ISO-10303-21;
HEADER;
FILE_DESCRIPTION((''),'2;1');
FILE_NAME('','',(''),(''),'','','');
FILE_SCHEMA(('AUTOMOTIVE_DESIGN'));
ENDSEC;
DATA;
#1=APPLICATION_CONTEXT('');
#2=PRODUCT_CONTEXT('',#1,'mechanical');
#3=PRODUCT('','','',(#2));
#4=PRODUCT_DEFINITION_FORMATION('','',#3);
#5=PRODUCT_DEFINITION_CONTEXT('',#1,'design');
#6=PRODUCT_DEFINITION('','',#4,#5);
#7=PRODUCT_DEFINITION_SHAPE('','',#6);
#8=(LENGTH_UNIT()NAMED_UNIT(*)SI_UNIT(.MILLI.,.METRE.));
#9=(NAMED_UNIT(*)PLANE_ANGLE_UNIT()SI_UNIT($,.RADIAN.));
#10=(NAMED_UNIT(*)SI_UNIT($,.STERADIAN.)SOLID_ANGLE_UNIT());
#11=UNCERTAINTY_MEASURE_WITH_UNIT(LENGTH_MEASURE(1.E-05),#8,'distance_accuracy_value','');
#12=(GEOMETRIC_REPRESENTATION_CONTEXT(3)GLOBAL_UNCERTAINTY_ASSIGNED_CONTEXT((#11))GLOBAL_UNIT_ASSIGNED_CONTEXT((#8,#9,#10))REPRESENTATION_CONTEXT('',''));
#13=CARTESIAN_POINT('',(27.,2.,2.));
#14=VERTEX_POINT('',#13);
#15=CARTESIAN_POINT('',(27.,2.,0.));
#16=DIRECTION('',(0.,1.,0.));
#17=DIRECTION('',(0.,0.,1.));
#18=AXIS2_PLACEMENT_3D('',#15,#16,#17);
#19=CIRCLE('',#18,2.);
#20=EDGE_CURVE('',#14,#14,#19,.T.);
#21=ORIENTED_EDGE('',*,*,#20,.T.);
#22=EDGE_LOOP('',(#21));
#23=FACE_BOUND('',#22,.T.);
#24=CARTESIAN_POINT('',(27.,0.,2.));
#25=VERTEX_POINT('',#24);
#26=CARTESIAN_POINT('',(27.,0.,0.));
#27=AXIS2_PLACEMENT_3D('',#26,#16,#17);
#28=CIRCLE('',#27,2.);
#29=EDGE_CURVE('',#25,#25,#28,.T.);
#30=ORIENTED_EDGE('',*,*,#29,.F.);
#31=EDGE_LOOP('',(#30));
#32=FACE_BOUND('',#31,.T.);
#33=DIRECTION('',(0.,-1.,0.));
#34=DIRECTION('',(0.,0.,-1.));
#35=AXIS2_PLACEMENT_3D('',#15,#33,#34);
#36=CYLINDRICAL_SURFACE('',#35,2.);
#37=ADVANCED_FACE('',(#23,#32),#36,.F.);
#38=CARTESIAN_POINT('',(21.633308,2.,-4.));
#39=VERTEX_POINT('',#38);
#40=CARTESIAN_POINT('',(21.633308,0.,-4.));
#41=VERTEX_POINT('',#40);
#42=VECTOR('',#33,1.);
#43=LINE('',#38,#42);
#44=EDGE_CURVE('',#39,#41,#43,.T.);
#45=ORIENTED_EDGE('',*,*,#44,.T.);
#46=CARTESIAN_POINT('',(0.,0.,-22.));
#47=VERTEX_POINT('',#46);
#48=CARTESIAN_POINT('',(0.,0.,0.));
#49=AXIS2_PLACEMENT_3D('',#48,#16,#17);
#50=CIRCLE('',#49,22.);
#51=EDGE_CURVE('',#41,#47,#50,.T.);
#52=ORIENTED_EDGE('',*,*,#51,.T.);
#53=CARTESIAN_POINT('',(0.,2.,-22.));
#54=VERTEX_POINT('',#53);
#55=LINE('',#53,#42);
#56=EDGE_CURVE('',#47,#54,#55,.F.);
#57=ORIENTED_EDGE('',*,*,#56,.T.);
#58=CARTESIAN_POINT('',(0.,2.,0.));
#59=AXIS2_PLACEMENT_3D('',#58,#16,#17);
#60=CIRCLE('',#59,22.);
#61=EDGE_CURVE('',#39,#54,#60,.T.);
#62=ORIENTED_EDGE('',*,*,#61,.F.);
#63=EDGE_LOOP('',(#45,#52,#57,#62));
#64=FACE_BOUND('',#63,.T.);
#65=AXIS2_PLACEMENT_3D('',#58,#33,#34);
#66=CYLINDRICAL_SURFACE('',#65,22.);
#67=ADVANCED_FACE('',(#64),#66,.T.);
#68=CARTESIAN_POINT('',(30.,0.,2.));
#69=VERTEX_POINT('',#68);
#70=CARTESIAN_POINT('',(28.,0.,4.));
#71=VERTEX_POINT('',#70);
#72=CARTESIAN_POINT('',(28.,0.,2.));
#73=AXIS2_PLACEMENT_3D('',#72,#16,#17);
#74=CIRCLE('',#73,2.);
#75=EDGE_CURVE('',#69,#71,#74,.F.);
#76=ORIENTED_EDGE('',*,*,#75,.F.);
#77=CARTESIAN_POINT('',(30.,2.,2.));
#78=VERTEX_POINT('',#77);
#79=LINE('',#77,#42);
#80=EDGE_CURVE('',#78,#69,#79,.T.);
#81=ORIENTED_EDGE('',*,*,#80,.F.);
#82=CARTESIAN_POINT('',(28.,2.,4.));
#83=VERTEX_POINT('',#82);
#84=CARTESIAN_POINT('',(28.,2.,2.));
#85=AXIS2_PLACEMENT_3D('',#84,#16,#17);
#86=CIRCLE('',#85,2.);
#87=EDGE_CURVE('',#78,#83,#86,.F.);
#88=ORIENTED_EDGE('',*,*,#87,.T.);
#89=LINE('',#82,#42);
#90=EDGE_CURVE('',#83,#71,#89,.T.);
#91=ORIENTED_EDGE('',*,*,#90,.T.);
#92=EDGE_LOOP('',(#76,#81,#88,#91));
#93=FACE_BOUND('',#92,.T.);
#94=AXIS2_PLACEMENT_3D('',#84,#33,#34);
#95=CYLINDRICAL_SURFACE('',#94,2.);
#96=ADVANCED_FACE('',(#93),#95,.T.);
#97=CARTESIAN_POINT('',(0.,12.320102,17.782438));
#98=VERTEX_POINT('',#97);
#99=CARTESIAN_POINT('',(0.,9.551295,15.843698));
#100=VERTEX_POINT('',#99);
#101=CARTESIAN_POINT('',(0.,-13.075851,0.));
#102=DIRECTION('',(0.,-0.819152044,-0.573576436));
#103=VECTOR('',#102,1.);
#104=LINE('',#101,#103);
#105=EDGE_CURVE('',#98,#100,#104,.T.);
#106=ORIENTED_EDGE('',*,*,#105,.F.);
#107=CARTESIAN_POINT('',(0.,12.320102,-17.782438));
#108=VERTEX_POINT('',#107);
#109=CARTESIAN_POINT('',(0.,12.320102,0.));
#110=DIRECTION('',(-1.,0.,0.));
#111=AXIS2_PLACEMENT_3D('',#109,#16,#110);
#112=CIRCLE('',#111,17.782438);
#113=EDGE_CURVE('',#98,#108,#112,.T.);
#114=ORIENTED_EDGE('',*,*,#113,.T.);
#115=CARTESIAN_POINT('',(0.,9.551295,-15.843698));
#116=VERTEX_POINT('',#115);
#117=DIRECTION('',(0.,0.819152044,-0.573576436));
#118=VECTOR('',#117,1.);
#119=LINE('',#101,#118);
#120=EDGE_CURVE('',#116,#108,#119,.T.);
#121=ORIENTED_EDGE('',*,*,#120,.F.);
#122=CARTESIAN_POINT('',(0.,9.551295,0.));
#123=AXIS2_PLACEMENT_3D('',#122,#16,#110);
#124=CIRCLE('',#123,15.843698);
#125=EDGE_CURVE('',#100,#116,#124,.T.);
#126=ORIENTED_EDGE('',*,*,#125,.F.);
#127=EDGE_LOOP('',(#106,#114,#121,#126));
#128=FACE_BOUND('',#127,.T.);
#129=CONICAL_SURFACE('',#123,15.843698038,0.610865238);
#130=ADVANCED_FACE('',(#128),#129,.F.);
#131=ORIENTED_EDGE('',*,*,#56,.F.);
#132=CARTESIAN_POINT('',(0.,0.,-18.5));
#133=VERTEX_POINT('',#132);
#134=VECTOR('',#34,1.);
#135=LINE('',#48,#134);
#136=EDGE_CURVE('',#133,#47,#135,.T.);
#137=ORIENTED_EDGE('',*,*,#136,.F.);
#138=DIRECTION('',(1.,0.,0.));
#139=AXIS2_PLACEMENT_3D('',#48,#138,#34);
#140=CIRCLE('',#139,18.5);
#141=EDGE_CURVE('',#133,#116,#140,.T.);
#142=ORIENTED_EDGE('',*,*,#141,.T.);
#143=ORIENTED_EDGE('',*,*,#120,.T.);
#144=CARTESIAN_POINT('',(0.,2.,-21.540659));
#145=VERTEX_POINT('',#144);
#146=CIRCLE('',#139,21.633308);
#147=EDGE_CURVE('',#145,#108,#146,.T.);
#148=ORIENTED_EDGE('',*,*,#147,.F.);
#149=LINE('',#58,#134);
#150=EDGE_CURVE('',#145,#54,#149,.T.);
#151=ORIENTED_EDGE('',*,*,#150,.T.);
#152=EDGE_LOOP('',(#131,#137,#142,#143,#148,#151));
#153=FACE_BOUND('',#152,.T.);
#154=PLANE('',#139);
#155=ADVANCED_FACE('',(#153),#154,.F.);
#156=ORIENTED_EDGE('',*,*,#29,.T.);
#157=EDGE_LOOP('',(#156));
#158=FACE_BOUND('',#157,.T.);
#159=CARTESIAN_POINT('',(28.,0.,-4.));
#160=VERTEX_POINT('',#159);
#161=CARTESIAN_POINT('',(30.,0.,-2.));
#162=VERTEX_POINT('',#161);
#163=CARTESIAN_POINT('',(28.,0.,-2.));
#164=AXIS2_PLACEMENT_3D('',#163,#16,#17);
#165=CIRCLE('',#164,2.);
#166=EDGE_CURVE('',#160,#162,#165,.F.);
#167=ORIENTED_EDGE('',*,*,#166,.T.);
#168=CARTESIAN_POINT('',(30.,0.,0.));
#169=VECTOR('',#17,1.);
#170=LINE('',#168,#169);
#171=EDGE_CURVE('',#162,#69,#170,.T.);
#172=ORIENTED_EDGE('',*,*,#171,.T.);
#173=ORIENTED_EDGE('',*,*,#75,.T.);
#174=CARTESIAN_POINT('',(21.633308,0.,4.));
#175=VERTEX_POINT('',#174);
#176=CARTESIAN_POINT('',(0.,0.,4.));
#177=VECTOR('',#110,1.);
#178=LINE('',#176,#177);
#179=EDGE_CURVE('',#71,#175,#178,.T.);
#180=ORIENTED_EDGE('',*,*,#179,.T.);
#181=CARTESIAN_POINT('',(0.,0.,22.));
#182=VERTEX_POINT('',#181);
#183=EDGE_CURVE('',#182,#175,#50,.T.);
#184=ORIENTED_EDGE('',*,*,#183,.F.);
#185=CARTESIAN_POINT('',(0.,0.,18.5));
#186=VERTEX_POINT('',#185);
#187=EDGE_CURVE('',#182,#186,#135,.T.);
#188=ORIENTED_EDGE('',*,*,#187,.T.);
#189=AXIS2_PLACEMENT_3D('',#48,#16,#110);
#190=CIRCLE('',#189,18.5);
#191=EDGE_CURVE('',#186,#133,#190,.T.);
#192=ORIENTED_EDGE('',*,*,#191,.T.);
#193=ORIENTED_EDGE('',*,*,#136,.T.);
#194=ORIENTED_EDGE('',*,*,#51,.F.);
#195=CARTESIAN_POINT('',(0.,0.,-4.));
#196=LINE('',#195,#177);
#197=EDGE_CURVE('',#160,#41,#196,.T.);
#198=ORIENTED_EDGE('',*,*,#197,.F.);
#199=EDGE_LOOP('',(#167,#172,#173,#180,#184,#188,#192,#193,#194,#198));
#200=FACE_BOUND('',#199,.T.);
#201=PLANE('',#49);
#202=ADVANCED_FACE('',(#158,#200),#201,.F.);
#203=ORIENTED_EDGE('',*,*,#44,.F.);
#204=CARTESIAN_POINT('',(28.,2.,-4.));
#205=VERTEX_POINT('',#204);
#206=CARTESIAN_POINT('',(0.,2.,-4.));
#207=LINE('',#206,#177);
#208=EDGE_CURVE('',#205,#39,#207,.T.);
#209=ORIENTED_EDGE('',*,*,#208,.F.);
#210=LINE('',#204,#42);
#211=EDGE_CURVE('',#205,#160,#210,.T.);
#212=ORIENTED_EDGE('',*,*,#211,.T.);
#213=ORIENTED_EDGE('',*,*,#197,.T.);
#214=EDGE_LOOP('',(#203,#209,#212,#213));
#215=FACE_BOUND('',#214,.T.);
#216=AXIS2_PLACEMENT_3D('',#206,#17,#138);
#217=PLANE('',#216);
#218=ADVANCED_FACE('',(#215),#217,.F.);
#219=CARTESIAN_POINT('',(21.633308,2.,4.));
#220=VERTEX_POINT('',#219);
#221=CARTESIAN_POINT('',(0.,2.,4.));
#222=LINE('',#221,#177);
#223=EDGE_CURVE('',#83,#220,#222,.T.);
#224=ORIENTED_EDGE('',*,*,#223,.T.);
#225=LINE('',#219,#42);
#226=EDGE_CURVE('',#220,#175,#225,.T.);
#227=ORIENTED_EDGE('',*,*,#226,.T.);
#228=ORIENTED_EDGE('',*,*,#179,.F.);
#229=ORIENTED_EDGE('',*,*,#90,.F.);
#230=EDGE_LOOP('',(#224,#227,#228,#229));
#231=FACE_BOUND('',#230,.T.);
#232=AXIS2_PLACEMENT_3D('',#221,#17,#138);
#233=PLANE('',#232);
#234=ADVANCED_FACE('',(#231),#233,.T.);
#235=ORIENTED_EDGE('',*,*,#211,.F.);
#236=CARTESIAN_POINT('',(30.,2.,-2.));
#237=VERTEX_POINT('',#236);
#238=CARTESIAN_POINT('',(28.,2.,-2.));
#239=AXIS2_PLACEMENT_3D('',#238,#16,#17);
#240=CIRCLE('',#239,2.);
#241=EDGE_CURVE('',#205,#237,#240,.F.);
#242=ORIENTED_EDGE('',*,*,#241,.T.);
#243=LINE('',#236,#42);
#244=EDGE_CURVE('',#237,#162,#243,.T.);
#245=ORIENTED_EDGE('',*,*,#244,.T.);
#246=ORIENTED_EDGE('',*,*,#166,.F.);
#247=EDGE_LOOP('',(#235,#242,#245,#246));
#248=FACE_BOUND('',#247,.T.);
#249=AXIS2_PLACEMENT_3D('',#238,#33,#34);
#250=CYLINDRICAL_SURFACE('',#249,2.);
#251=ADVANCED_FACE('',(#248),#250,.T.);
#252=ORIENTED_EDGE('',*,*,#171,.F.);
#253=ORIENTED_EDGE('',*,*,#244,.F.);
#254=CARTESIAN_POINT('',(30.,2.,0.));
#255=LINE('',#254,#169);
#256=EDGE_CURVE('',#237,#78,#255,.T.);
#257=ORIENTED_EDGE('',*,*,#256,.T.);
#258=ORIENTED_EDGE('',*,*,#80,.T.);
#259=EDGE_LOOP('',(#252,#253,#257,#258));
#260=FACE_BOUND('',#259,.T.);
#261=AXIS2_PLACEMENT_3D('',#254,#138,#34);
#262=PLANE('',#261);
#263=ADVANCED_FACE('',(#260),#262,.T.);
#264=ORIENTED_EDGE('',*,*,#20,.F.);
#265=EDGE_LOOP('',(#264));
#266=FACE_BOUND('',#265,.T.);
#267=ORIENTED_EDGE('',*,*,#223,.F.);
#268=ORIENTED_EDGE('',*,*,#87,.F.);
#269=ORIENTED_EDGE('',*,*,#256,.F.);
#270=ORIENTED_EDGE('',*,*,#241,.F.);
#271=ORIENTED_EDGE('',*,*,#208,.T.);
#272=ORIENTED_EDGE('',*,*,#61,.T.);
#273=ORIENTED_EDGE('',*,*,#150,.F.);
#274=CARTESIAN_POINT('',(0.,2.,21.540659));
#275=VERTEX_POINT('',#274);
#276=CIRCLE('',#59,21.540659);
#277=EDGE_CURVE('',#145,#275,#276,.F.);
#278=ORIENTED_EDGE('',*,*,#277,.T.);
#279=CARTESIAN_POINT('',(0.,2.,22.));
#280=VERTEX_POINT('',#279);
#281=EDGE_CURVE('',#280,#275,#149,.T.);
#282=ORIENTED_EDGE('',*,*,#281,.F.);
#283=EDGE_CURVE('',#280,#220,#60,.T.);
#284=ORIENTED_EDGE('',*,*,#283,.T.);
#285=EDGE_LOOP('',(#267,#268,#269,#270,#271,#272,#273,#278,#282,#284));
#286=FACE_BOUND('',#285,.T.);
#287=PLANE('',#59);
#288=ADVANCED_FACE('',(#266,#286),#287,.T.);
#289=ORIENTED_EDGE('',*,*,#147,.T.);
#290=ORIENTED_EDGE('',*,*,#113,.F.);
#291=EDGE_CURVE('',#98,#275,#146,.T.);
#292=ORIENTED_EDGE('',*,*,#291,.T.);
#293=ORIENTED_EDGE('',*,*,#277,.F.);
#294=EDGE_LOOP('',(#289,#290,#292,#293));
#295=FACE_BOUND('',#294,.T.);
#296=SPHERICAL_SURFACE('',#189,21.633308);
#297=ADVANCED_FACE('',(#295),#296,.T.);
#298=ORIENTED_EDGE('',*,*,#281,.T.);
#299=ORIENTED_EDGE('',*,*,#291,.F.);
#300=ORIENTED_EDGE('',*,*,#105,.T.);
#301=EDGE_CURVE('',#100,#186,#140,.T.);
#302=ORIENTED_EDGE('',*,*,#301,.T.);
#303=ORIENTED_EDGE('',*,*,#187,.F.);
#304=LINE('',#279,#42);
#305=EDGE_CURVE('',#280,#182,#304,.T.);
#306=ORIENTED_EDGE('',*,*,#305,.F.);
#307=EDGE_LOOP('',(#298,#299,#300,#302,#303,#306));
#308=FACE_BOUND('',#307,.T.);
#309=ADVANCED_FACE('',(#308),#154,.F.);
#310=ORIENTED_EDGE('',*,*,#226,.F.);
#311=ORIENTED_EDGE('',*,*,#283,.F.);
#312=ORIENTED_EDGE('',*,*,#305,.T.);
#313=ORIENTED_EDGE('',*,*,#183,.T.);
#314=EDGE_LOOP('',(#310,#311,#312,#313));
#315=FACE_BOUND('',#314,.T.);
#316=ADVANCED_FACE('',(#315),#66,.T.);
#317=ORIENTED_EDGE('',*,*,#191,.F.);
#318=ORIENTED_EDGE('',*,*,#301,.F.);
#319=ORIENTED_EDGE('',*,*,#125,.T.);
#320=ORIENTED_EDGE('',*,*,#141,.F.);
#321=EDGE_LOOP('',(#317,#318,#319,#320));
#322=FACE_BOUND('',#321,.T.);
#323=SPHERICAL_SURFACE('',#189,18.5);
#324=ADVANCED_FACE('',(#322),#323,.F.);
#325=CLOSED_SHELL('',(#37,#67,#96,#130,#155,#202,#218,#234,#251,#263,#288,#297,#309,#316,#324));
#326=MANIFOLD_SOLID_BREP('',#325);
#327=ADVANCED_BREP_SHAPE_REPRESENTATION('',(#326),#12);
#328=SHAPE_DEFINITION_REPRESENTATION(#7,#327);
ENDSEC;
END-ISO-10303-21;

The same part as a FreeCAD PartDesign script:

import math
import FreeCAD as App
import Part
import Sketcher
from FreeCAD import Vector
Q = App.Units.Quantity


def add_polygon(sketch, points):
    """Adds a closed chain of lines whose ends are joined by coincident constraints."""
    first, n = sketch.GeometryCount, len(points)
    for a, b in zip(points, points[1:] + points[:1]):
        sketch.addGeometry(Part.LineSegment(App.Vector(*a, 0), App.Vector(*b, 0)), False)
    for i in range(n):
        sketch.addConstraint(Sketcher.Constraint("Coincident", first + i, 2, first + (i + 1) % n, 1))

doc = App.newDocument("Part")
params = doc.addObject("Spreadsheet::Sheet", "Params")
for row, (alias, value) in enumerate([
    ("sketch1_diameter", "4 mm"),
    ("sketch1_diameter2", "37 mm"),
    ("sketch1_radius", "22 mm"),
    ("sketch1_height", "4 mm"),
    ("pad1_length", "2 mm"),
    ("sketch2_radius", "18.5 mm"),
    ("revolution_angle", "360 deg"),
], start=1):
    params.set(f"A{row}", alias)
    params.set(f"B{row}", "=" + value)
    params.setAlias(f"B{row}", alias)

body = doc.addObject("PartDesign::Body", "Body")

# Sketch on XZ plane
sketch1 = doc.addObject("Sketcher::SketchObject", "Sketch")
body.addObject(sketch1)
sketch1.AttachmentSupport = (doc.XZ_Plane, [""])
sketch1.MapMode = "FlatFace"
sketch1.addGeometry(Part.ArcOfCircle(Part.Circle(Vector(28, -2, 0), Vector(0, 0, 1), 2), math.radians(-90), math.radians(0)), False)
sketch1.addGeometry(Part.LineSegment(Vector(28, -4, 0), Vector(21.6, -4, 0)), False)
sketch1.addGeometry(Part.ArcOfCircle(Part.Circle(Vector(0, 0, 0), Vector(0, 0, 1), 22), math.radians(-170), math.radians(-10)), False)
sketch1.addGeometry(Part.LineSegment(Vector(-21.6, -4, 0), Vector(-28, -4, 0)), False)
sketch1.addGeometry(Part.ArcOfCircle(Part.Circle(Vector(-28, -2, 0), Vector(0, 0, 1), 2), math.radians(-180), math.radians(-90)), False)
sketch1.addGeometry(Part.LineSegment(Vector(-30, -2, 0), Vector(-30, 2, 0)), False)
sketch1.addGeometry(Part.ArcOfCircle(Part.Circle(Vector(-28, 2, 0), Vector(0, 0, 1), 2), math.radians(90), math.radians(180)), False)
sketch1.addGeometry(Part.LineSegment(Vector(-28, 4, 0), Vector(-21.6, 4, 0)), False)
sketch1.addGeometry(Part.ArcOfCircle(Part.Circle(Vector(0, 0, 0), Vector(0, 0, 1), 22), math.radians(10), math.radians(170)), False)
sketch1.addGeometry(Part.LineSegment(Vector(21.6, 4, 0), Vector(28, 4, 0)), False)
sketch1.addGeometry(Part.ArcOfCircle(Part.Circle(Vector(28, 2, 0), Vector(0, 0, 1), 2), math.radians(0), math.radians(90)), False)
sketch1.addGeometry(Part.LineSegment(Vector(30, 2, 0), Vector(30, -2, 0)), False)
sketch1.addGeometry(Part.Circle(Vector(-27, 0, 0), Vector(0, 0, 1), 2), False)
sketch1.addGeometry(Part.Circle(Vector(0, 0, 0), Vector(0, 0, 1), 18.5), False)
sketch1.addGeometry(Part.Circle(Vector(27, 0, 0), Vector(0, 0, 1), 2), False)
sketch1.addConstraint(Sketcher.Constraint("Tangent", 0, 1, 1, 1))
sketch1.addConstraint(Sketcher.Constraint("Coincident", 1, 2, 2, 2))
sketch1.addConstraint(Sketcher.Constraint("Coincident", 2, 1, 3, 1))
sketch1.addConstraint(Sketcher.Constraint("Tangent", 3, 2, 4, 2))
sketch1.addConstraint(Sketcher.Constraint("Tangent", 4, 1, 5, 1))
sketch1.addConstraint(Sketcher.Constraint("Tangent", 5, 2, 6, 2))
sketch1.addConstraint(Sketcher.Constraint("Tangent", 6, 1, 7, 1))
sketch1.addConstraint(Sketcher.Constraint("Coincident", 7, 2, 8, 2))
sketch1.addConstraint(Sketcher.Constraint("Coincident", 8, 1, 9, 1))
sketch1.addConstraint(Sketcher.Constraint("Tangent", 9, 2, 10, 2))
sketch1.addConstraint(Sketcher.Constraint("Tangent", 10, 1, 11, 1))
sketch1.addConstraint(Sketcher.Constraint("Tangent", 11, 2, 0, 2))
sketch1.addConstraint(Sketcher.Constraint("Horizontal", 1))
sketch1.addConstraint(Sketcher.Constraint("Horizontal", 3))
sketch1.addConstraint(Sketcher.Constraint("Vertical", 5))
sketch1.addConstraint(Sketcher.Constraint("Horizontal", 7))
sketch1.addConstraint(Sketcher.Constraint("Horizontal", 9))
sketch1.addConstraint(Sketcher.Constraint("Vertical", 11))
sketch1.addConstraint(Sketcher.Constraint("Coincident", 2, 3, -1, 1))
sketch1.addConstraint(Sketcher.Constraint("Coincident", 8, 3, -1, 1))
sketch1.addConstraint(Sketcher.Constraint("Coincident", 13, 3, -1, 1))
sketch1.addConstraint(Sketcher.Constraint("Equal", 0, 4))
sketch1.addConstraint(Sketcher.Constraint("Equal", 4, 6))
sketch1.addConstraint(Sketcher.Constraint("Equal", 2, 8))
sketch1.addConstraint(Sketcher.Constraint("Equal", 6, 10))
sketch1.addConstraint(Sketcher.Constraint("Equal", 10, 12))
sketch1.addConstraint(Sketcher.Constraint("Equal", 12, 14))
sketch1.addConstraint(Sketcher.Constraint("Symmetric", 0, 3, 6, 3, -1, 1))
sketch1.addConstraint(Sketcher.Constraint("Symmetric", 12, 3, 14, 3, -1, 1))
sketch1.addConstraint(Sketcher.Constraint("PointOnObject", 12, 3, -1))
sketch1.addConstraint(Sketcher.Constraint("Horizontal", 0, 3, 4, 3))
sketch1.addConstraint(Sketcher.Constraint("Horizontal", 6, 3, 10, 3))
sketch1.addConstraint(Sketcher.Constraint("Diameter", 12, Q("4 mm")))
sketch1.addConstraint(Sketcher.Constraint("Diameter", 13, Q("37 mm")))
sketch1.addConstraint(Sketcher.Constraint("Radius", 2, Q("22 mm")))
sketch1.addConstraint(Sketcher.Constraint("DistanceY", 5, 1, 5, 2, Q("4 mm")))
sketch1.addConstraint(Sketcher.Constraint("DistanceX", -1, 1, 0, 3, Q("28 mm")))
sketch1.addConstraint(Sketcher.Constraint("DistanceX", 12, 3, -1, 1, Q("27 mm")))
sketch1.setExpression("Constraints[32]", "Params.sketch1_diameter")
sketch1.setExpression("Constraints[33]", "Params.sketch1_diameter2")
sketch1.setExpression("Constraints[34]", "Params.sketch1_radius")
sketch1.setExpression("Constraints[35]", "Params.sketch1_height")
pad1 = doc.addObject("PartDesign::Pad", "Pad")
body.addObject(pad1)
pad1.Profile = sketch1
pad1.setExpression("Length", "Params.pad1_length")
pad1.Reversed = True

# Sketch on XY plane
sketch2 = doc.addObject("Sketcher::SketchObject", "Sketch001")
body.addObject(sketch2)
sketch2.AttachmentSupport = (doc.XY_Plane, [""])
sketch2.MapMode = "FlatFace"
sketch2.addGeometry(Part.LineSegment(Vector(-21.6, 0, 0), Vector(-18.5, 0, 0)), False)
sketch2.addGeometry(Part.ArcOfCircle(Part.Circle(Vector(0, 0, 0), Vector(0, 0, 1), 18.5), math.radians(149), math.radians(180)), False)
sketch2.addGeometry(Part.LineSegment(Vector(-15.8, 9.6, 0), Vector(-17.8, 12.3, 0)), False)
sketch2.addGeometry(Part.ArcOfCircle(Part.Circle(Vector(0, 0, 0), Vector(0, 0, 1), 21.6), math.radians(145), math.radians(180)), False)
sketch2.addConstraint(Sketcher.Constraint("Coincident", 0, 2, 1, 2))
sketch2.addConstraint(Sketcher.Constraint("Coincident", 1, 1, 2, 1))
sketch2.addConstraint(Sketcher.Constraint("Coincident", 2, 2, 3, 1))
sketch2.addConstraint(Sketcher.Constraint("Coincident", 3, 2, 0, 1))
sketch2.addConstraint(Sketcher.Constraint("Horizontal", 0))
sketch2.addConstraint(Sketcher.Constraint("Coincident", 1, 3, -1, 1))
sketch2.addConstraint(Sketcher.Constraint("Coincident", 3, 3, -1, 1))
sketch2.addConstraint(Sketcher.Constraint("PointOnObject", 0, 2, -1))
sketch2.addConstraint(Sketcher.Constraint("Radius", 1, Q("18.5 mm")))
sketch2.addConstraint(Sketcher.Constraint("Angle", 2, Q("125 deg")))
sketch2.addConstraint(Sketcher.Constraint("Radius", 3, Q("21.633308 mm")))
sketch2.addConstraint(Sketcher.Constraint("DistanceX", 1, 1, -1, 1, Q("15.843698 mm")))
sketch2.setExpression("Constraints[8]", "Params.sketch2_radius")
revolution = doc.addObject("PartDesign::Revolution", "Revolution")
body.addObject(revolution)
revolution.Profile = sketch2
revolution.ReferenceAxis = (sketch2, ["V_Axis"])
revolution.setExpression("Angle", "Params.revolution_angle")

# Sketch on YZ plane
sketch3 = doc.addObject("Sketcher::SketchObject", "Sketch002")
body.addObject(sketch3)
sketch3.AttachmentSupport = (doc.YZ_Plane, [""])
sketch3.MapMode = "FlatFace"
add_polygon(sketch3, [(18, 34), (-18, 34), (-18, -34), (18, -34)])  # lines 0-3
sketch3.addConstraint(Sketcher.Constraint("Horizontal", 0))
sketch3.addConstraint(Sketcher.Constraint("Vertical", 1))
sketch3.addConstraint(Sketcher.Constraint("Horizontal", 2))
sketch3.addConstraint(Sketcher.Constraint("Vertical", 3))
sketch3.addConstraint(Sketcher.Constraint("Symmetric", 0, 2, 2, 2, -1, 1))
sketch3.addConstraint(Sketcher.Constraint("DistanceX", 0, 2, 0, 1, Q("35.271008 mm")))
sketch3.addConstraint(Sketcher.Constraint("DistanceY", 1, 2, 1, 1, Q("68.697938 mm")))
pocket1 = doc.addObject("PartDesign::Pocket", "Pocket")
body.addObject(pocket1)
pocket1.Profile = sketch3
pocket1.Type = "ThroughAll"

doc.recompute()
